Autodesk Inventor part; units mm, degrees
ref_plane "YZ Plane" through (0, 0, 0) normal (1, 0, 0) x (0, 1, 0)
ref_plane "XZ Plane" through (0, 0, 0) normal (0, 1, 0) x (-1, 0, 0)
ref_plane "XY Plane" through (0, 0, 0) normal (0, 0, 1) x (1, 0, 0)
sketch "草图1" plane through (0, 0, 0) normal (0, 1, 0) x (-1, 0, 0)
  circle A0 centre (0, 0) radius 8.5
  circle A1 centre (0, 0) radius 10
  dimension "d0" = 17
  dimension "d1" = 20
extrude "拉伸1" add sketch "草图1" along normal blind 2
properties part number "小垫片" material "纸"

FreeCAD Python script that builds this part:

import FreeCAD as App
import Part
import Sketcher

doc = App.newDocument("Part")
body = doc.addObject("PartDesign::Body", "Body")

sketch1 = body.newObject("Sketcher::SketchObject", "Sketch")
sketch1.AttachmentSupport = (doc.getObject("XZ_Plane"), [""])
sketch1.MapMode = "FlatFace"
sketch1.addGeometry([
    Part.Circle(App.Vector(0, 0, 0), App.Vector(0, 0, 1), 10),
    Part.Circle(App.Vector(0, 0, 0), App.Vector(0, 0, 1), 8),
], False)
sketch1.addConstraint([
    Sketcher.Constraint("Coincident", 0, 3, -1, 1),
    Sketcher.Constraint("Coincident", 1, 3, -1, 1),
    Sketcher.Constraint("Diameter", 0, 20.0),
    Sketcher.Constraint("Diameter", 1, 17.0),
])
pad1 = body.newObject("PartDesign::Pad", "Pad")
pad1.Profile = sketch1
pad1.Length = 2
pad1.Reversed = True

doc.recompute()
